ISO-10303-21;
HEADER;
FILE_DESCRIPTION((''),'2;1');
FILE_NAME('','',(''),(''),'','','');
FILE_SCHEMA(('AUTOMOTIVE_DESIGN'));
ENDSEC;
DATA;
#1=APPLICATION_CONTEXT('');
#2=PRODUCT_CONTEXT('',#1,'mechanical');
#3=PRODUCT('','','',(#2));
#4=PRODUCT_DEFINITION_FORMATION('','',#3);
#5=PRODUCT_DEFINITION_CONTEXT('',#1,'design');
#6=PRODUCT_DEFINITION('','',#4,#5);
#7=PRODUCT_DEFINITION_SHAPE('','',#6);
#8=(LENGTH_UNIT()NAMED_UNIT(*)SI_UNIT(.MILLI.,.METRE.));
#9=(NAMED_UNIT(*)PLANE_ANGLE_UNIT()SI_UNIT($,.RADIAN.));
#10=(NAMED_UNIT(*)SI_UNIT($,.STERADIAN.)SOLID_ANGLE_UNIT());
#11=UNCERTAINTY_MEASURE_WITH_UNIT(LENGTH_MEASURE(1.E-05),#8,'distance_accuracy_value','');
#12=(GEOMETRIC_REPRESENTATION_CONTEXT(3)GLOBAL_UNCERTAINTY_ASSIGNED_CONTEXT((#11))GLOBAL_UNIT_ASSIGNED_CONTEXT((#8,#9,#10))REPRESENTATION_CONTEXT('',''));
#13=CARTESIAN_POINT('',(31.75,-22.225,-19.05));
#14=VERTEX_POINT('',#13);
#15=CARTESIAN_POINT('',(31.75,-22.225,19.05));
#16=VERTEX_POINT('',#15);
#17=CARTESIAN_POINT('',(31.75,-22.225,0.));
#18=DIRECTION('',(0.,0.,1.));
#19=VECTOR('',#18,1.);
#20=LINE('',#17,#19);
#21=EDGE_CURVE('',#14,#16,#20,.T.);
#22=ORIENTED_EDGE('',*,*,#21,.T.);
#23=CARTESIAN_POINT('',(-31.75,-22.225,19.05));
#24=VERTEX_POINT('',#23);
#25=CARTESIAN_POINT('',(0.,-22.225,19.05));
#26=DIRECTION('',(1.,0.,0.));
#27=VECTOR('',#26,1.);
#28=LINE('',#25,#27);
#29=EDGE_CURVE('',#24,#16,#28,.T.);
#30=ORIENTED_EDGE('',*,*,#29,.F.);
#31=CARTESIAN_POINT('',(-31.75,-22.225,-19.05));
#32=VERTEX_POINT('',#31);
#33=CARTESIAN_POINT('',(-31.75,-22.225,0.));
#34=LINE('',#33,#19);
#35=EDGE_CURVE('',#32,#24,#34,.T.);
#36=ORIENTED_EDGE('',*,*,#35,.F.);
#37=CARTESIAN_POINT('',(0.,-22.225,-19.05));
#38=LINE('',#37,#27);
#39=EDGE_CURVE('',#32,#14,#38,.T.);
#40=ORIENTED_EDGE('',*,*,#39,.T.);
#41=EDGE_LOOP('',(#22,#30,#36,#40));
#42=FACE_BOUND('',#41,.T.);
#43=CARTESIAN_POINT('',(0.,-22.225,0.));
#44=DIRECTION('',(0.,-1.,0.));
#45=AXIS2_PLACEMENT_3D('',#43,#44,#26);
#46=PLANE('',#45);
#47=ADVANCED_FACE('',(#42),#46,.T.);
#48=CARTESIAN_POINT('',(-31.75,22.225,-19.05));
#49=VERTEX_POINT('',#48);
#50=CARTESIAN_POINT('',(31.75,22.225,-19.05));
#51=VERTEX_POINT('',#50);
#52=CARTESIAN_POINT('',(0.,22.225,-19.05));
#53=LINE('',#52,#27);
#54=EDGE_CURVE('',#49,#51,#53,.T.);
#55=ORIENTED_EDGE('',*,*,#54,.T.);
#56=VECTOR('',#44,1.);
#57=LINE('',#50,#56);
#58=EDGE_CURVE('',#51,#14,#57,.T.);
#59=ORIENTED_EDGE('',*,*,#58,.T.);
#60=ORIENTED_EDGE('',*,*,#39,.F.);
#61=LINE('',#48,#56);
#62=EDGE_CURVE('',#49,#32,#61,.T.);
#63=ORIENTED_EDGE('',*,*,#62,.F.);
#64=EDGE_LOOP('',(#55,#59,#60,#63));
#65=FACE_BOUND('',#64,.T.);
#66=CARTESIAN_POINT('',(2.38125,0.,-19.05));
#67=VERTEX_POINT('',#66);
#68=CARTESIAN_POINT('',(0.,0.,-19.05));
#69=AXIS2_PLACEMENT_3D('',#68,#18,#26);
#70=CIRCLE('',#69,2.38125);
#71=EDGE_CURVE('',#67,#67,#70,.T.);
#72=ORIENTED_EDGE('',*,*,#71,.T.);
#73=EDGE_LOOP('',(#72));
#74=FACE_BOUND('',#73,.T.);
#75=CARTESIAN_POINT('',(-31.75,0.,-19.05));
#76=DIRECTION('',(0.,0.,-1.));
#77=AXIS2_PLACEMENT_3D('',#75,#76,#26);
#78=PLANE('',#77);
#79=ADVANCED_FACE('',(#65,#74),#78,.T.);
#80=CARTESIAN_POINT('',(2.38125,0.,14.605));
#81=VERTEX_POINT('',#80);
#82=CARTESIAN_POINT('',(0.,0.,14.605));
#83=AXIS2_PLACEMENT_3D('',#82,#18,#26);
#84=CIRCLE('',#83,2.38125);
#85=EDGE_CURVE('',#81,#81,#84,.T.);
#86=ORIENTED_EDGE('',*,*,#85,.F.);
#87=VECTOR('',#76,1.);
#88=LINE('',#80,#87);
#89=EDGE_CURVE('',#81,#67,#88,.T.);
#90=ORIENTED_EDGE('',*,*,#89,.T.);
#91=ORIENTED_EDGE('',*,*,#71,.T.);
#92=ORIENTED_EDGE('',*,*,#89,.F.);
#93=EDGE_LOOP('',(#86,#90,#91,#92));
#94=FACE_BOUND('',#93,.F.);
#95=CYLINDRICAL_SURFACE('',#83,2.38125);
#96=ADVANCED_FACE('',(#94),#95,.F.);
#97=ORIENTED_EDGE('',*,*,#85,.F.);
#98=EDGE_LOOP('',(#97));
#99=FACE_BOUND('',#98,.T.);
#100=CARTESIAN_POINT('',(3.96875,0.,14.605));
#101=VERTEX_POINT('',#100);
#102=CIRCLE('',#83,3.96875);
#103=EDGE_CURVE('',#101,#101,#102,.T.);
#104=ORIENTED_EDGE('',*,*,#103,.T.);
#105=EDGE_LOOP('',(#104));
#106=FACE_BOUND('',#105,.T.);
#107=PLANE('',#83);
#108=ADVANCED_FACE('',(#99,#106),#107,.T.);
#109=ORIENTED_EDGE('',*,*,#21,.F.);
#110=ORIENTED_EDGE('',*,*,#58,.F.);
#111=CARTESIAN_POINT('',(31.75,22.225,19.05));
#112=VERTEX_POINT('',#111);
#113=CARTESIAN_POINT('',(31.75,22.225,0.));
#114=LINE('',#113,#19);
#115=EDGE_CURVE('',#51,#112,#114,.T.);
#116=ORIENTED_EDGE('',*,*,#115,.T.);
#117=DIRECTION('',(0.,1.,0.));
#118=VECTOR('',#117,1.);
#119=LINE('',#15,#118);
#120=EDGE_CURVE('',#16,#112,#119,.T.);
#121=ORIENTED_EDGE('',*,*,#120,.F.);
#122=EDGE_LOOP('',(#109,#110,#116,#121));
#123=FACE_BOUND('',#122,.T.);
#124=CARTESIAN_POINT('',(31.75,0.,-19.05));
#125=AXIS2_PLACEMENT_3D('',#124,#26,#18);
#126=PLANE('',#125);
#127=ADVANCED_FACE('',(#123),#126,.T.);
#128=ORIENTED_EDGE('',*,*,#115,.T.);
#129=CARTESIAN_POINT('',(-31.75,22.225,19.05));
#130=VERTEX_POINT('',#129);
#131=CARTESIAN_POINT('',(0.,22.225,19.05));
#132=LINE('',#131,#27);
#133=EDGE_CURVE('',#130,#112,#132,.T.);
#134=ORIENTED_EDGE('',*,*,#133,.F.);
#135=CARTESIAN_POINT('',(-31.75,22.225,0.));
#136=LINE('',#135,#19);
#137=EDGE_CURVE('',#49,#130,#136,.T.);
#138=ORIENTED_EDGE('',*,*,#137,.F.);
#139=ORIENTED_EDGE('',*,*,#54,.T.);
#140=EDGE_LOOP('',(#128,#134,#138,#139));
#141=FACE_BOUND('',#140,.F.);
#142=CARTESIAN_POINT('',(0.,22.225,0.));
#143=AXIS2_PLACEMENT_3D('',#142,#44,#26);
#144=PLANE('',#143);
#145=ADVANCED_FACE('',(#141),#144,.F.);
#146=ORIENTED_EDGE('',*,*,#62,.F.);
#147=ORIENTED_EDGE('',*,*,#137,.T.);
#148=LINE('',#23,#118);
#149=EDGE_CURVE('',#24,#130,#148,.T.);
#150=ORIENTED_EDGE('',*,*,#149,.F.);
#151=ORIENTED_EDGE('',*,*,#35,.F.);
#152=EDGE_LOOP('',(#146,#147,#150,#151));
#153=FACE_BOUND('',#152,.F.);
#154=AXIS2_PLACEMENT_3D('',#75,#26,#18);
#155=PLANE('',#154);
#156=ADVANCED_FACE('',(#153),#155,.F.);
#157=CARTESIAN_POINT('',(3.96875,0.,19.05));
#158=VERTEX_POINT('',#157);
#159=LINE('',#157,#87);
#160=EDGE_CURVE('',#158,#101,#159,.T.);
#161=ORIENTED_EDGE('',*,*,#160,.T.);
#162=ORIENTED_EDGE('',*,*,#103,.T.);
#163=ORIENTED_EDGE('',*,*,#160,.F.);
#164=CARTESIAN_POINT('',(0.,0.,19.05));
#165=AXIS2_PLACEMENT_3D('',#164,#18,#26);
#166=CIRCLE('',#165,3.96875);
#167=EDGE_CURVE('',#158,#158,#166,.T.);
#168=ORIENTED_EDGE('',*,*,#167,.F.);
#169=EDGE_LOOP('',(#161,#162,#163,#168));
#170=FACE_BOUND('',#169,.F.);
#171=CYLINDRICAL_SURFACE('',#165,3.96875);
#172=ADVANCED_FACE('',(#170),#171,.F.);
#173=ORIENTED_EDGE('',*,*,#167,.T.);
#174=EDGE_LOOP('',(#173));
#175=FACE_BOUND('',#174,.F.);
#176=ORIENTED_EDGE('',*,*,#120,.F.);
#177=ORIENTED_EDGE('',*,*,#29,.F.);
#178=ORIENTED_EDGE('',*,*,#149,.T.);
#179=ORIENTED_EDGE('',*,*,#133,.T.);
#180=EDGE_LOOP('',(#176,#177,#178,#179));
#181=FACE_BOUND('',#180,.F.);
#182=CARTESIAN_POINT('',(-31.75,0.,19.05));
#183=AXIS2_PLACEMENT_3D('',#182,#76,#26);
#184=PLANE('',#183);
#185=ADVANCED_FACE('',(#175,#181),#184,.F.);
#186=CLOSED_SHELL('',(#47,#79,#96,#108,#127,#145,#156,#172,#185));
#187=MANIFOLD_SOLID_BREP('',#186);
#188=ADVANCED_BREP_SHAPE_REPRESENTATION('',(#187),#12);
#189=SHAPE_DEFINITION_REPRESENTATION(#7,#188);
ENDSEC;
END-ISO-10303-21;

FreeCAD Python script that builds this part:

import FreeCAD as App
import Part
import Sketcher
from FreeCAD import Vector
Q = App.Units.Quantity


def add_polygon(sketch, points):
    """Adds a closed chain of lines whose ends are joined by coincident constraints."""
    first, n = sketch.GeometryCount, len(points)
    for a, b in zip(points, points[1:] + points[:1]):
        sketch.addGeometry(Part.LineSegment(App.Vector(*a, 0), App.Vector(*b, 0)), False)
    for i in range(n):
        sketch.addConstraint(Sketcher.Constraint("Coincident", first + i, 2, first + (i + 1) % n, 1))

doc = App.newDocument("Part")
body = doc.addObject("PartDesign::Body", "Body")

sketch1 = body.newObject("Sketcher::SketchObject", "Sketch")
sketch1.AttachmentSupport = (doc.getObject("XZ_Plane"), [""])
sketch1.MapMode = "FlatFace"
add_polygon(sketch1, [(-31.75, 19.05), (-31.75, -19.05), (31.75, -19.05), (31.75, 19.05)])
sketch1.addConstraint([
    Sketcher.Constraint("Vertical", 0),
    Sketcher.Constraint("Horizontal", 1),
    Sketcher.Constraint("Vertical", 2),
    Sketcher.Constraint("Horizontal", 3),
    Sketcher.Constraint("Symmetric", 0, 2, 2, 2, -1, 1),
    Sketcher.Constraint("DistanceX", 1, 1, 1, 2, Q("2.5 in")),
    Sketcher.Constraint("DistanceY", 0, 2, 0, 1, Q("1.5 in")),
])
pad1 = body.newObject("PartDesign::Pad", "Pad")
pad1.Profile = sketch1
pad1.Length = Q("1.75 in")
pad1.Midplane = True

sketch2 = body.newObject("Sketcher::SketchObject", "Sketch001")
sketch2.AttachmentSupport = (doc.getObject("XY_Plane"), [""])
sketch2.MapMode = "FlatFace"
sketch2.AttachmentOffset = App.Placement(Vector(0, 0, 0.75 * 25.4), App.Rotation())
sketch2.addGeometry(Part.Circle(Vector(0, 0, 0), Vector(0, 0, 1), 3.96875), False)
sketch2.addConstraint([
    Sketcher.Constraint("Coincident", 0, 3, -1, 1),
    Sketcher.Constraint("Diameter", 0, Q("0.3125 in")),
])
pocket1 = body.newObject("PartDesign::Pocket", "Pocket")
pocket1.Profile = sketch2
pocket1.Length = Q("0.175 in")

sketch3 = body.newObject("Sketcher::SketchObject", "Sketch002")
sketch3.AttachmentSupport = (doc.getObject("XY_Plane"), [""])
sketch3.MapMode = "FlatFace"
sketch3.AttachmentOffset = App.Placement(Vector(0, 0, 0.575 * 25.4), App.Rotation())
sketch3.addGeometry(Part.Circle(Vector(0, 0, 0), Vector(0, 0, 1), 2.38125), False)
sketch3.addConstraint([
    Sketcher.Constraint("Coincident", 0, 3, -1, 1),
    Sketcher.Constraint("Diameter", 0, Q("0.1875 in")),
])
pocket2 = body.newObject("PartDesign::Pocket", "Pocket001")
pocket2.Profile = sketch3
pocket2.Type = "ThroughAll"

doc.recompute()
